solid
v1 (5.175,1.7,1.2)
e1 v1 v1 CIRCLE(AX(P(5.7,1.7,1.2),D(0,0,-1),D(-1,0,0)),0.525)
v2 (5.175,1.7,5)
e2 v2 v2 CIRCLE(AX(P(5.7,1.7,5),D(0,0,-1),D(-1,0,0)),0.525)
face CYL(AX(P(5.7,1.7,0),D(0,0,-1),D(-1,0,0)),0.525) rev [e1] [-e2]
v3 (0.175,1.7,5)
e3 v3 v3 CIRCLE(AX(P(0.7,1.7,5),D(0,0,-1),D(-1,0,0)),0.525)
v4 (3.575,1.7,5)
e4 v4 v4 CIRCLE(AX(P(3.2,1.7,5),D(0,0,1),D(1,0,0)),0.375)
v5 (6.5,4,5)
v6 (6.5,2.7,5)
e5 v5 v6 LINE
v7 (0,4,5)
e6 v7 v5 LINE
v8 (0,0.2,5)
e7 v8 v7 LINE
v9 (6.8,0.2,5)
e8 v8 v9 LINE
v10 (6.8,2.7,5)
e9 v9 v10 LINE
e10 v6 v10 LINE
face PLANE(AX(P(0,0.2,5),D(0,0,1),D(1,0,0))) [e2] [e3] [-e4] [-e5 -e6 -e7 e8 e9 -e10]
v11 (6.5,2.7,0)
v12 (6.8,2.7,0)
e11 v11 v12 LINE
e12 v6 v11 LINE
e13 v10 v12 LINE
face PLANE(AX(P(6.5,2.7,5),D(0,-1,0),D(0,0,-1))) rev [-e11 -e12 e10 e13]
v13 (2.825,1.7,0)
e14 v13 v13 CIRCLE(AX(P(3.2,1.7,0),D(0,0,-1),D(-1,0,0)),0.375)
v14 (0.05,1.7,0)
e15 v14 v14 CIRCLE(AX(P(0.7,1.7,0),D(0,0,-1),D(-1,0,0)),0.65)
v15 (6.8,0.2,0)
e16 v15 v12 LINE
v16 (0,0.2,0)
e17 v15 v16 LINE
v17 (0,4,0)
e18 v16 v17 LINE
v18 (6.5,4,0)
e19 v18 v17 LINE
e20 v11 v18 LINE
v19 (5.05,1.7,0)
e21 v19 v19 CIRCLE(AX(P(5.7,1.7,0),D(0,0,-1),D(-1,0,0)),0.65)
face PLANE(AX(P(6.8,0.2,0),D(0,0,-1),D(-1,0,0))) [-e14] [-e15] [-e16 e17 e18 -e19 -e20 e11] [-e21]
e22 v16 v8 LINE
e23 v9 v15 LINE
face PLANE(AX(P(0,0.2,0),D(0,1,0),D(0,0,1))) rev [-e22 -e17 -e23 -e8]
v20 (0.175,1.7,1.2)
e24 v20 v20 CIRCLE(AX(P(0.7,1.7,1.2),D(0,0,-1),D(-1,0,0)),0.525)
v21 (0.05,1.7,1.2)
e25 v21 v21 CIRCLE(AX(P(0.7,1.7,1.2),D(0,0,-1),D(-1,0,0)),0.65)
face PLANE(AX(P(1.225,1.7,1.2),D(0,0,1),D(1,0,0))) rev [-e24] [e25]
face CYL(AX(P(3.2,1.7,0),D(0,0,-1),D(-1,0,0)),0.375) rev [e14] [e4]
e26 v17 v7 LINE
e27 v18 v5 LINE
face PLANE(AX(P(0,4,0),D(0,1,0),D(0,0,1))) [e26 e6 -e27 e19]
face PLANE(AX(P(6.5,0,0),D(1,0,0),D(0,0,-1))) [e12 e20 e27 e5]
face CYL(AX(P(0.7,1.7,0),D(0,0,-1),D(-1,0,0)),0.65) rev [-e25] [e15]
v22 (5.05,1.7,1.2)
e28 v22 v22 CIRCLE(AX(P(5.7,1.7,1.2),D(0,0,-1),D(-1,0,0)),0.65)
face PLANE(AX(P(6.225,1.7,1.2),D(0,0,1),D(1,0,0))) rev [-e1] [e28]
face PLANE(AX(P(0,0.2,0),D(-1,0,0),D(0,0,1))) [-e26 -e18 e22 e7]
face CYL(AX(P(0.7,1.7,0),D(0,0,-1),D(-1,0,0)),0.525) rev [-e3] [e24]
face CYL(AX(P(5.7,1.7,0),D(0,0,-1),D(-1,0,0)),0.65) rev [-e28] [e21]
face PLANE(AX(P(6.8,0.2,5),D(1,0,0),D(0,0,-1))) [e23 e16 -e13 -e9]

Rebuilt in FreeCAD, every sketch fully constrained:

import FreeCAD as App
import Part
import Sketcher
Q = App.Units.Quantity

doc = App.newDocument("Part")
params = doc.addObject("Spreadsheet::Sheet", "Params")
for row, (alias, value) in enumerate([
    ("sketch1_height", "5 mm"),
    ("sketch1_width", "6.8 mm"),
    ("pad1_length", "3.8 mm"),
    ("sketch2_diameter", "1.05 mm"),
    ("hole_diameter", "1.05 mm"),
    ("hole_cbore_diameter", "1.3 mm"),
    ("hole_cbore_depth", "1.2 mm"),
    ("sketch3_height", "5 mm"),
    ("sketch3_width", "1.3 mm"),
    ("pocket1_length", "0.3 mm"),
    ("sketch4_diameter", "0.75 mm"),
    ("hole2_diameter", "0.75 mm"),
], start=1):
    params.set(f"A{row}", alias)
    params.set(f"B{row}", "=" + value)
    params.setAlias(f"B{row}", alias)

body = doc.addObject("PartDesign::Body", "Body")

sketch1 = body.newObject("Sketcher::SketchObject", "Sketch")
sketch1.AttachmentSupport = (doc.getObject("XZ_Plane"), [""])
sketch1.MapMode = "FlatFace"
sketch1.AttachmentOffset = App.Placement(App.Vector(0, 0, -4), App.Rotation())
sketch1.addGeometry([
    Part.LineSegment(App.Vector(6.8, 5, 0), App.Vector(6.8, 0, 0)),
    Part.LineSegment(App.Vector(6.8, 0, 0), App.Vector(0, 0, 0)),
    Part.LineSegment(App.Vector(0, 0, 0), App.Vector(0, 5, 0)),
    Part.LineSegment(App.Vector(0, 5, 0), App.Vector(6.8, 5, 0)),
], False)
sketch1.addConstraint([
    Sketcher.Constraint("Coincident", 0, 2, 1, 1),
    Sketcher.Constraint("Coincident", 1, 2, 2, 1),
    Sketcher.Constraint("Coincident", 2, 2, 3, 1),
    Sketcher.Constraint("Coincident", 3, 2, 0, 1),
    Sketcher.Constraint("Vertical", 0),
    Sketcher.Constraint("Horizontal", 1),
    Sketcher.Constraint("Vertical", 2),
    Sketcher.Constraint("Horizontal", 3),
    Sketcher.Constraint("Coincident", 1, 2, -1, 1),
    Sketcher.Constraint("DistanceY", 0, 2, 0, 1, Q("5 mm")),
    Sketcher.Constraint("DistanceX", 1, 2, 1, 1, Q("6.8 mm")),
])
sketch1.setExpression("Constraints[9]", "Params.sketch1_height")
sketch1.setExpression("Constraints[10]", "Params.sketch1_width")
pad1 = body.newObject("PartDesign::Pad", "Pad")
pad1.Profile = sketch1
pad1.setExpression("Length", "Params.pad1_length")

sketch2 = body.newObject("Sketcher::SketchObject", "Sketch001")
sketch2.AttachmentSupport = (doc.getObject("XY_Plane"), [""])
sketch2.MapMode = "FlatFace"
sketch2.addGeometry([
    Part.Circle(App.Vector(5.7, 1.7, 0), App.Vector(0, 0, 1), 0.525),
    Part.Circle(App.Vector(0.7, 1.7, 0), App.Vector(0, 0, 1), 0.525),
], False)
sketch2.addConstraint([
    Sketcher.Constraint("Equal", 0, 1),
    Sketcher.Constraint("Horizontal", 0, 3, 1, 3),
    Sketcher.Constraint("Diameter", 0, Q("1.05 mm")),
    Sketcher.Constraint("DistanceX", 1, 3, 0, 3, Q("5 mm")),
    Sketcher.Constraint("DistanceX", -1, 1, 0, 3, Q("5.7 mm")),
    Sketcher.Constraint("DistanceY", -1, 1, 0, 3, Q("1.7 mm")),
])
sketch2.setExpression("Constraints[2]", "Params.sketch2_diameter")
doc.recompute()
hole = body.newObject("PartDesign::Hole", "Hole")
hole.Profile = sketch2
hole.ThreadType = "None"
hole.setExpression("Diameter", "Params.hole_diameter")
hole.DepthType = "ThroughAll"
hole.HoleCutType = "Counterbore"
hole.setExpression("HoleCutDiameter", "Params.hole_cbore_diameter")
hole.setExpression("HoleCutDepth", "Params.hole_cbore_depth")
hole.Reversed = True

sketch3 = body.newObject("Sketcher::SketchObject", "Sketch002")
sketch3.AttachmentSupport = (doc.getObject("YZ_Plane"), [""])
sketch3.MapMode = "FlatFace"
sketch3.AttachmentOffset = App.Placement(App.Vector(0, 0, 6.8), App.Rotation())
sketch3.addGeometry([
    Part.LineSegment(App.Vector(4, 5, 0), App.Vector(2.7, 5, 0)),
    Part.LineSegment(App.Vector(2.7, 5, 0), App.Vector(2.7, 0, 0)),
    Part.LineSegment(App.Vector(2.7, 0, 0), App.Vector(4, 0, 0)),
    Part.LineSegment(App.Vector(4, 0, 0), App.Vector(4, 5, 0)),
], False)
sketch3.addConstraint([
    Sketcher.Constraint("Coincident", 0, 2, 1, 1),
    Sketcher.Constraint("Coincident", 1, 2, 2, 1),
    Sketcher.Constraint("Coincident", 2, 2, 3, 1),
    Sketcher.Constraint("Coincident", 3, 2, 0, 1),
    Sketcher.Constraint("Horizontal", 0),
    Sketcher.Constraint("Vertical", 1),
    Sketcher.Constraint("Horizontal", 2),
    Sketcher.Constraint("Vertical", 3),
    Sketcher.Constraint("PointOnObject", 1, 2, -1),
    Sketcher.Constraint("DistanceY", 1, 2, 1, 1, Q("5 mm")),
    Sketcher.Constraint("DistanceX", 0, 2, 0, 1, Q("1.3 mm")),
    Sketcher.Constraint("DistanceX", -1, 1, 2, 2, Q("4 mm")),
])
sketch3.setExpression("Constraints[9]", "Params.sketch3_height")
sketch3.setExpression("Constraints[10]", "Params.sketch3_width")
pocket1 = body.newObject("PartDesign::Pocket", "Pocket")
pocket1.Profile = sketch3
pocket1.setExpression("Length", "Params.pocket1_length")

sketch4 = body.newObject("Sketcher::SketchObject", "Sketch003")
sketch4.AttachmentSupport = (doc.getObject("XY_Plane"), [""])
sketch4.MapMode = "FlatFace"
sketch4.addGeometry(Part.Circle(App.Vector(3.2, 1.7, 0), App.Vector(0, 0, 1), 0.375), False)
sketch4.addConstraint([
    Sketcher.Constraint("Diameter", 0, Q("0.75 mm")),
    Sketcher.Constraint("DistanceX", -1, 1, 0, 3, Q("3.2 mm")),
    Sketcher.Constraint("DistanceY", -1, 1, 0, 3, Q("1.7 mm")),
])
sketch4.setExpression("Constraints[0]", "Params.sketch4_diameter")
doc.recompute()
hole2 = body.newObject("PartDesign::Hole", "Hole001")
hole2.Profile = sketch4
hole2.ThreadType = "None"
hole2.setExpression("Diameter", "Params.hole2_diameter")
hole2.DepthType = "ThroughAll"
hole2.Reversed = True

doc.recompute()
